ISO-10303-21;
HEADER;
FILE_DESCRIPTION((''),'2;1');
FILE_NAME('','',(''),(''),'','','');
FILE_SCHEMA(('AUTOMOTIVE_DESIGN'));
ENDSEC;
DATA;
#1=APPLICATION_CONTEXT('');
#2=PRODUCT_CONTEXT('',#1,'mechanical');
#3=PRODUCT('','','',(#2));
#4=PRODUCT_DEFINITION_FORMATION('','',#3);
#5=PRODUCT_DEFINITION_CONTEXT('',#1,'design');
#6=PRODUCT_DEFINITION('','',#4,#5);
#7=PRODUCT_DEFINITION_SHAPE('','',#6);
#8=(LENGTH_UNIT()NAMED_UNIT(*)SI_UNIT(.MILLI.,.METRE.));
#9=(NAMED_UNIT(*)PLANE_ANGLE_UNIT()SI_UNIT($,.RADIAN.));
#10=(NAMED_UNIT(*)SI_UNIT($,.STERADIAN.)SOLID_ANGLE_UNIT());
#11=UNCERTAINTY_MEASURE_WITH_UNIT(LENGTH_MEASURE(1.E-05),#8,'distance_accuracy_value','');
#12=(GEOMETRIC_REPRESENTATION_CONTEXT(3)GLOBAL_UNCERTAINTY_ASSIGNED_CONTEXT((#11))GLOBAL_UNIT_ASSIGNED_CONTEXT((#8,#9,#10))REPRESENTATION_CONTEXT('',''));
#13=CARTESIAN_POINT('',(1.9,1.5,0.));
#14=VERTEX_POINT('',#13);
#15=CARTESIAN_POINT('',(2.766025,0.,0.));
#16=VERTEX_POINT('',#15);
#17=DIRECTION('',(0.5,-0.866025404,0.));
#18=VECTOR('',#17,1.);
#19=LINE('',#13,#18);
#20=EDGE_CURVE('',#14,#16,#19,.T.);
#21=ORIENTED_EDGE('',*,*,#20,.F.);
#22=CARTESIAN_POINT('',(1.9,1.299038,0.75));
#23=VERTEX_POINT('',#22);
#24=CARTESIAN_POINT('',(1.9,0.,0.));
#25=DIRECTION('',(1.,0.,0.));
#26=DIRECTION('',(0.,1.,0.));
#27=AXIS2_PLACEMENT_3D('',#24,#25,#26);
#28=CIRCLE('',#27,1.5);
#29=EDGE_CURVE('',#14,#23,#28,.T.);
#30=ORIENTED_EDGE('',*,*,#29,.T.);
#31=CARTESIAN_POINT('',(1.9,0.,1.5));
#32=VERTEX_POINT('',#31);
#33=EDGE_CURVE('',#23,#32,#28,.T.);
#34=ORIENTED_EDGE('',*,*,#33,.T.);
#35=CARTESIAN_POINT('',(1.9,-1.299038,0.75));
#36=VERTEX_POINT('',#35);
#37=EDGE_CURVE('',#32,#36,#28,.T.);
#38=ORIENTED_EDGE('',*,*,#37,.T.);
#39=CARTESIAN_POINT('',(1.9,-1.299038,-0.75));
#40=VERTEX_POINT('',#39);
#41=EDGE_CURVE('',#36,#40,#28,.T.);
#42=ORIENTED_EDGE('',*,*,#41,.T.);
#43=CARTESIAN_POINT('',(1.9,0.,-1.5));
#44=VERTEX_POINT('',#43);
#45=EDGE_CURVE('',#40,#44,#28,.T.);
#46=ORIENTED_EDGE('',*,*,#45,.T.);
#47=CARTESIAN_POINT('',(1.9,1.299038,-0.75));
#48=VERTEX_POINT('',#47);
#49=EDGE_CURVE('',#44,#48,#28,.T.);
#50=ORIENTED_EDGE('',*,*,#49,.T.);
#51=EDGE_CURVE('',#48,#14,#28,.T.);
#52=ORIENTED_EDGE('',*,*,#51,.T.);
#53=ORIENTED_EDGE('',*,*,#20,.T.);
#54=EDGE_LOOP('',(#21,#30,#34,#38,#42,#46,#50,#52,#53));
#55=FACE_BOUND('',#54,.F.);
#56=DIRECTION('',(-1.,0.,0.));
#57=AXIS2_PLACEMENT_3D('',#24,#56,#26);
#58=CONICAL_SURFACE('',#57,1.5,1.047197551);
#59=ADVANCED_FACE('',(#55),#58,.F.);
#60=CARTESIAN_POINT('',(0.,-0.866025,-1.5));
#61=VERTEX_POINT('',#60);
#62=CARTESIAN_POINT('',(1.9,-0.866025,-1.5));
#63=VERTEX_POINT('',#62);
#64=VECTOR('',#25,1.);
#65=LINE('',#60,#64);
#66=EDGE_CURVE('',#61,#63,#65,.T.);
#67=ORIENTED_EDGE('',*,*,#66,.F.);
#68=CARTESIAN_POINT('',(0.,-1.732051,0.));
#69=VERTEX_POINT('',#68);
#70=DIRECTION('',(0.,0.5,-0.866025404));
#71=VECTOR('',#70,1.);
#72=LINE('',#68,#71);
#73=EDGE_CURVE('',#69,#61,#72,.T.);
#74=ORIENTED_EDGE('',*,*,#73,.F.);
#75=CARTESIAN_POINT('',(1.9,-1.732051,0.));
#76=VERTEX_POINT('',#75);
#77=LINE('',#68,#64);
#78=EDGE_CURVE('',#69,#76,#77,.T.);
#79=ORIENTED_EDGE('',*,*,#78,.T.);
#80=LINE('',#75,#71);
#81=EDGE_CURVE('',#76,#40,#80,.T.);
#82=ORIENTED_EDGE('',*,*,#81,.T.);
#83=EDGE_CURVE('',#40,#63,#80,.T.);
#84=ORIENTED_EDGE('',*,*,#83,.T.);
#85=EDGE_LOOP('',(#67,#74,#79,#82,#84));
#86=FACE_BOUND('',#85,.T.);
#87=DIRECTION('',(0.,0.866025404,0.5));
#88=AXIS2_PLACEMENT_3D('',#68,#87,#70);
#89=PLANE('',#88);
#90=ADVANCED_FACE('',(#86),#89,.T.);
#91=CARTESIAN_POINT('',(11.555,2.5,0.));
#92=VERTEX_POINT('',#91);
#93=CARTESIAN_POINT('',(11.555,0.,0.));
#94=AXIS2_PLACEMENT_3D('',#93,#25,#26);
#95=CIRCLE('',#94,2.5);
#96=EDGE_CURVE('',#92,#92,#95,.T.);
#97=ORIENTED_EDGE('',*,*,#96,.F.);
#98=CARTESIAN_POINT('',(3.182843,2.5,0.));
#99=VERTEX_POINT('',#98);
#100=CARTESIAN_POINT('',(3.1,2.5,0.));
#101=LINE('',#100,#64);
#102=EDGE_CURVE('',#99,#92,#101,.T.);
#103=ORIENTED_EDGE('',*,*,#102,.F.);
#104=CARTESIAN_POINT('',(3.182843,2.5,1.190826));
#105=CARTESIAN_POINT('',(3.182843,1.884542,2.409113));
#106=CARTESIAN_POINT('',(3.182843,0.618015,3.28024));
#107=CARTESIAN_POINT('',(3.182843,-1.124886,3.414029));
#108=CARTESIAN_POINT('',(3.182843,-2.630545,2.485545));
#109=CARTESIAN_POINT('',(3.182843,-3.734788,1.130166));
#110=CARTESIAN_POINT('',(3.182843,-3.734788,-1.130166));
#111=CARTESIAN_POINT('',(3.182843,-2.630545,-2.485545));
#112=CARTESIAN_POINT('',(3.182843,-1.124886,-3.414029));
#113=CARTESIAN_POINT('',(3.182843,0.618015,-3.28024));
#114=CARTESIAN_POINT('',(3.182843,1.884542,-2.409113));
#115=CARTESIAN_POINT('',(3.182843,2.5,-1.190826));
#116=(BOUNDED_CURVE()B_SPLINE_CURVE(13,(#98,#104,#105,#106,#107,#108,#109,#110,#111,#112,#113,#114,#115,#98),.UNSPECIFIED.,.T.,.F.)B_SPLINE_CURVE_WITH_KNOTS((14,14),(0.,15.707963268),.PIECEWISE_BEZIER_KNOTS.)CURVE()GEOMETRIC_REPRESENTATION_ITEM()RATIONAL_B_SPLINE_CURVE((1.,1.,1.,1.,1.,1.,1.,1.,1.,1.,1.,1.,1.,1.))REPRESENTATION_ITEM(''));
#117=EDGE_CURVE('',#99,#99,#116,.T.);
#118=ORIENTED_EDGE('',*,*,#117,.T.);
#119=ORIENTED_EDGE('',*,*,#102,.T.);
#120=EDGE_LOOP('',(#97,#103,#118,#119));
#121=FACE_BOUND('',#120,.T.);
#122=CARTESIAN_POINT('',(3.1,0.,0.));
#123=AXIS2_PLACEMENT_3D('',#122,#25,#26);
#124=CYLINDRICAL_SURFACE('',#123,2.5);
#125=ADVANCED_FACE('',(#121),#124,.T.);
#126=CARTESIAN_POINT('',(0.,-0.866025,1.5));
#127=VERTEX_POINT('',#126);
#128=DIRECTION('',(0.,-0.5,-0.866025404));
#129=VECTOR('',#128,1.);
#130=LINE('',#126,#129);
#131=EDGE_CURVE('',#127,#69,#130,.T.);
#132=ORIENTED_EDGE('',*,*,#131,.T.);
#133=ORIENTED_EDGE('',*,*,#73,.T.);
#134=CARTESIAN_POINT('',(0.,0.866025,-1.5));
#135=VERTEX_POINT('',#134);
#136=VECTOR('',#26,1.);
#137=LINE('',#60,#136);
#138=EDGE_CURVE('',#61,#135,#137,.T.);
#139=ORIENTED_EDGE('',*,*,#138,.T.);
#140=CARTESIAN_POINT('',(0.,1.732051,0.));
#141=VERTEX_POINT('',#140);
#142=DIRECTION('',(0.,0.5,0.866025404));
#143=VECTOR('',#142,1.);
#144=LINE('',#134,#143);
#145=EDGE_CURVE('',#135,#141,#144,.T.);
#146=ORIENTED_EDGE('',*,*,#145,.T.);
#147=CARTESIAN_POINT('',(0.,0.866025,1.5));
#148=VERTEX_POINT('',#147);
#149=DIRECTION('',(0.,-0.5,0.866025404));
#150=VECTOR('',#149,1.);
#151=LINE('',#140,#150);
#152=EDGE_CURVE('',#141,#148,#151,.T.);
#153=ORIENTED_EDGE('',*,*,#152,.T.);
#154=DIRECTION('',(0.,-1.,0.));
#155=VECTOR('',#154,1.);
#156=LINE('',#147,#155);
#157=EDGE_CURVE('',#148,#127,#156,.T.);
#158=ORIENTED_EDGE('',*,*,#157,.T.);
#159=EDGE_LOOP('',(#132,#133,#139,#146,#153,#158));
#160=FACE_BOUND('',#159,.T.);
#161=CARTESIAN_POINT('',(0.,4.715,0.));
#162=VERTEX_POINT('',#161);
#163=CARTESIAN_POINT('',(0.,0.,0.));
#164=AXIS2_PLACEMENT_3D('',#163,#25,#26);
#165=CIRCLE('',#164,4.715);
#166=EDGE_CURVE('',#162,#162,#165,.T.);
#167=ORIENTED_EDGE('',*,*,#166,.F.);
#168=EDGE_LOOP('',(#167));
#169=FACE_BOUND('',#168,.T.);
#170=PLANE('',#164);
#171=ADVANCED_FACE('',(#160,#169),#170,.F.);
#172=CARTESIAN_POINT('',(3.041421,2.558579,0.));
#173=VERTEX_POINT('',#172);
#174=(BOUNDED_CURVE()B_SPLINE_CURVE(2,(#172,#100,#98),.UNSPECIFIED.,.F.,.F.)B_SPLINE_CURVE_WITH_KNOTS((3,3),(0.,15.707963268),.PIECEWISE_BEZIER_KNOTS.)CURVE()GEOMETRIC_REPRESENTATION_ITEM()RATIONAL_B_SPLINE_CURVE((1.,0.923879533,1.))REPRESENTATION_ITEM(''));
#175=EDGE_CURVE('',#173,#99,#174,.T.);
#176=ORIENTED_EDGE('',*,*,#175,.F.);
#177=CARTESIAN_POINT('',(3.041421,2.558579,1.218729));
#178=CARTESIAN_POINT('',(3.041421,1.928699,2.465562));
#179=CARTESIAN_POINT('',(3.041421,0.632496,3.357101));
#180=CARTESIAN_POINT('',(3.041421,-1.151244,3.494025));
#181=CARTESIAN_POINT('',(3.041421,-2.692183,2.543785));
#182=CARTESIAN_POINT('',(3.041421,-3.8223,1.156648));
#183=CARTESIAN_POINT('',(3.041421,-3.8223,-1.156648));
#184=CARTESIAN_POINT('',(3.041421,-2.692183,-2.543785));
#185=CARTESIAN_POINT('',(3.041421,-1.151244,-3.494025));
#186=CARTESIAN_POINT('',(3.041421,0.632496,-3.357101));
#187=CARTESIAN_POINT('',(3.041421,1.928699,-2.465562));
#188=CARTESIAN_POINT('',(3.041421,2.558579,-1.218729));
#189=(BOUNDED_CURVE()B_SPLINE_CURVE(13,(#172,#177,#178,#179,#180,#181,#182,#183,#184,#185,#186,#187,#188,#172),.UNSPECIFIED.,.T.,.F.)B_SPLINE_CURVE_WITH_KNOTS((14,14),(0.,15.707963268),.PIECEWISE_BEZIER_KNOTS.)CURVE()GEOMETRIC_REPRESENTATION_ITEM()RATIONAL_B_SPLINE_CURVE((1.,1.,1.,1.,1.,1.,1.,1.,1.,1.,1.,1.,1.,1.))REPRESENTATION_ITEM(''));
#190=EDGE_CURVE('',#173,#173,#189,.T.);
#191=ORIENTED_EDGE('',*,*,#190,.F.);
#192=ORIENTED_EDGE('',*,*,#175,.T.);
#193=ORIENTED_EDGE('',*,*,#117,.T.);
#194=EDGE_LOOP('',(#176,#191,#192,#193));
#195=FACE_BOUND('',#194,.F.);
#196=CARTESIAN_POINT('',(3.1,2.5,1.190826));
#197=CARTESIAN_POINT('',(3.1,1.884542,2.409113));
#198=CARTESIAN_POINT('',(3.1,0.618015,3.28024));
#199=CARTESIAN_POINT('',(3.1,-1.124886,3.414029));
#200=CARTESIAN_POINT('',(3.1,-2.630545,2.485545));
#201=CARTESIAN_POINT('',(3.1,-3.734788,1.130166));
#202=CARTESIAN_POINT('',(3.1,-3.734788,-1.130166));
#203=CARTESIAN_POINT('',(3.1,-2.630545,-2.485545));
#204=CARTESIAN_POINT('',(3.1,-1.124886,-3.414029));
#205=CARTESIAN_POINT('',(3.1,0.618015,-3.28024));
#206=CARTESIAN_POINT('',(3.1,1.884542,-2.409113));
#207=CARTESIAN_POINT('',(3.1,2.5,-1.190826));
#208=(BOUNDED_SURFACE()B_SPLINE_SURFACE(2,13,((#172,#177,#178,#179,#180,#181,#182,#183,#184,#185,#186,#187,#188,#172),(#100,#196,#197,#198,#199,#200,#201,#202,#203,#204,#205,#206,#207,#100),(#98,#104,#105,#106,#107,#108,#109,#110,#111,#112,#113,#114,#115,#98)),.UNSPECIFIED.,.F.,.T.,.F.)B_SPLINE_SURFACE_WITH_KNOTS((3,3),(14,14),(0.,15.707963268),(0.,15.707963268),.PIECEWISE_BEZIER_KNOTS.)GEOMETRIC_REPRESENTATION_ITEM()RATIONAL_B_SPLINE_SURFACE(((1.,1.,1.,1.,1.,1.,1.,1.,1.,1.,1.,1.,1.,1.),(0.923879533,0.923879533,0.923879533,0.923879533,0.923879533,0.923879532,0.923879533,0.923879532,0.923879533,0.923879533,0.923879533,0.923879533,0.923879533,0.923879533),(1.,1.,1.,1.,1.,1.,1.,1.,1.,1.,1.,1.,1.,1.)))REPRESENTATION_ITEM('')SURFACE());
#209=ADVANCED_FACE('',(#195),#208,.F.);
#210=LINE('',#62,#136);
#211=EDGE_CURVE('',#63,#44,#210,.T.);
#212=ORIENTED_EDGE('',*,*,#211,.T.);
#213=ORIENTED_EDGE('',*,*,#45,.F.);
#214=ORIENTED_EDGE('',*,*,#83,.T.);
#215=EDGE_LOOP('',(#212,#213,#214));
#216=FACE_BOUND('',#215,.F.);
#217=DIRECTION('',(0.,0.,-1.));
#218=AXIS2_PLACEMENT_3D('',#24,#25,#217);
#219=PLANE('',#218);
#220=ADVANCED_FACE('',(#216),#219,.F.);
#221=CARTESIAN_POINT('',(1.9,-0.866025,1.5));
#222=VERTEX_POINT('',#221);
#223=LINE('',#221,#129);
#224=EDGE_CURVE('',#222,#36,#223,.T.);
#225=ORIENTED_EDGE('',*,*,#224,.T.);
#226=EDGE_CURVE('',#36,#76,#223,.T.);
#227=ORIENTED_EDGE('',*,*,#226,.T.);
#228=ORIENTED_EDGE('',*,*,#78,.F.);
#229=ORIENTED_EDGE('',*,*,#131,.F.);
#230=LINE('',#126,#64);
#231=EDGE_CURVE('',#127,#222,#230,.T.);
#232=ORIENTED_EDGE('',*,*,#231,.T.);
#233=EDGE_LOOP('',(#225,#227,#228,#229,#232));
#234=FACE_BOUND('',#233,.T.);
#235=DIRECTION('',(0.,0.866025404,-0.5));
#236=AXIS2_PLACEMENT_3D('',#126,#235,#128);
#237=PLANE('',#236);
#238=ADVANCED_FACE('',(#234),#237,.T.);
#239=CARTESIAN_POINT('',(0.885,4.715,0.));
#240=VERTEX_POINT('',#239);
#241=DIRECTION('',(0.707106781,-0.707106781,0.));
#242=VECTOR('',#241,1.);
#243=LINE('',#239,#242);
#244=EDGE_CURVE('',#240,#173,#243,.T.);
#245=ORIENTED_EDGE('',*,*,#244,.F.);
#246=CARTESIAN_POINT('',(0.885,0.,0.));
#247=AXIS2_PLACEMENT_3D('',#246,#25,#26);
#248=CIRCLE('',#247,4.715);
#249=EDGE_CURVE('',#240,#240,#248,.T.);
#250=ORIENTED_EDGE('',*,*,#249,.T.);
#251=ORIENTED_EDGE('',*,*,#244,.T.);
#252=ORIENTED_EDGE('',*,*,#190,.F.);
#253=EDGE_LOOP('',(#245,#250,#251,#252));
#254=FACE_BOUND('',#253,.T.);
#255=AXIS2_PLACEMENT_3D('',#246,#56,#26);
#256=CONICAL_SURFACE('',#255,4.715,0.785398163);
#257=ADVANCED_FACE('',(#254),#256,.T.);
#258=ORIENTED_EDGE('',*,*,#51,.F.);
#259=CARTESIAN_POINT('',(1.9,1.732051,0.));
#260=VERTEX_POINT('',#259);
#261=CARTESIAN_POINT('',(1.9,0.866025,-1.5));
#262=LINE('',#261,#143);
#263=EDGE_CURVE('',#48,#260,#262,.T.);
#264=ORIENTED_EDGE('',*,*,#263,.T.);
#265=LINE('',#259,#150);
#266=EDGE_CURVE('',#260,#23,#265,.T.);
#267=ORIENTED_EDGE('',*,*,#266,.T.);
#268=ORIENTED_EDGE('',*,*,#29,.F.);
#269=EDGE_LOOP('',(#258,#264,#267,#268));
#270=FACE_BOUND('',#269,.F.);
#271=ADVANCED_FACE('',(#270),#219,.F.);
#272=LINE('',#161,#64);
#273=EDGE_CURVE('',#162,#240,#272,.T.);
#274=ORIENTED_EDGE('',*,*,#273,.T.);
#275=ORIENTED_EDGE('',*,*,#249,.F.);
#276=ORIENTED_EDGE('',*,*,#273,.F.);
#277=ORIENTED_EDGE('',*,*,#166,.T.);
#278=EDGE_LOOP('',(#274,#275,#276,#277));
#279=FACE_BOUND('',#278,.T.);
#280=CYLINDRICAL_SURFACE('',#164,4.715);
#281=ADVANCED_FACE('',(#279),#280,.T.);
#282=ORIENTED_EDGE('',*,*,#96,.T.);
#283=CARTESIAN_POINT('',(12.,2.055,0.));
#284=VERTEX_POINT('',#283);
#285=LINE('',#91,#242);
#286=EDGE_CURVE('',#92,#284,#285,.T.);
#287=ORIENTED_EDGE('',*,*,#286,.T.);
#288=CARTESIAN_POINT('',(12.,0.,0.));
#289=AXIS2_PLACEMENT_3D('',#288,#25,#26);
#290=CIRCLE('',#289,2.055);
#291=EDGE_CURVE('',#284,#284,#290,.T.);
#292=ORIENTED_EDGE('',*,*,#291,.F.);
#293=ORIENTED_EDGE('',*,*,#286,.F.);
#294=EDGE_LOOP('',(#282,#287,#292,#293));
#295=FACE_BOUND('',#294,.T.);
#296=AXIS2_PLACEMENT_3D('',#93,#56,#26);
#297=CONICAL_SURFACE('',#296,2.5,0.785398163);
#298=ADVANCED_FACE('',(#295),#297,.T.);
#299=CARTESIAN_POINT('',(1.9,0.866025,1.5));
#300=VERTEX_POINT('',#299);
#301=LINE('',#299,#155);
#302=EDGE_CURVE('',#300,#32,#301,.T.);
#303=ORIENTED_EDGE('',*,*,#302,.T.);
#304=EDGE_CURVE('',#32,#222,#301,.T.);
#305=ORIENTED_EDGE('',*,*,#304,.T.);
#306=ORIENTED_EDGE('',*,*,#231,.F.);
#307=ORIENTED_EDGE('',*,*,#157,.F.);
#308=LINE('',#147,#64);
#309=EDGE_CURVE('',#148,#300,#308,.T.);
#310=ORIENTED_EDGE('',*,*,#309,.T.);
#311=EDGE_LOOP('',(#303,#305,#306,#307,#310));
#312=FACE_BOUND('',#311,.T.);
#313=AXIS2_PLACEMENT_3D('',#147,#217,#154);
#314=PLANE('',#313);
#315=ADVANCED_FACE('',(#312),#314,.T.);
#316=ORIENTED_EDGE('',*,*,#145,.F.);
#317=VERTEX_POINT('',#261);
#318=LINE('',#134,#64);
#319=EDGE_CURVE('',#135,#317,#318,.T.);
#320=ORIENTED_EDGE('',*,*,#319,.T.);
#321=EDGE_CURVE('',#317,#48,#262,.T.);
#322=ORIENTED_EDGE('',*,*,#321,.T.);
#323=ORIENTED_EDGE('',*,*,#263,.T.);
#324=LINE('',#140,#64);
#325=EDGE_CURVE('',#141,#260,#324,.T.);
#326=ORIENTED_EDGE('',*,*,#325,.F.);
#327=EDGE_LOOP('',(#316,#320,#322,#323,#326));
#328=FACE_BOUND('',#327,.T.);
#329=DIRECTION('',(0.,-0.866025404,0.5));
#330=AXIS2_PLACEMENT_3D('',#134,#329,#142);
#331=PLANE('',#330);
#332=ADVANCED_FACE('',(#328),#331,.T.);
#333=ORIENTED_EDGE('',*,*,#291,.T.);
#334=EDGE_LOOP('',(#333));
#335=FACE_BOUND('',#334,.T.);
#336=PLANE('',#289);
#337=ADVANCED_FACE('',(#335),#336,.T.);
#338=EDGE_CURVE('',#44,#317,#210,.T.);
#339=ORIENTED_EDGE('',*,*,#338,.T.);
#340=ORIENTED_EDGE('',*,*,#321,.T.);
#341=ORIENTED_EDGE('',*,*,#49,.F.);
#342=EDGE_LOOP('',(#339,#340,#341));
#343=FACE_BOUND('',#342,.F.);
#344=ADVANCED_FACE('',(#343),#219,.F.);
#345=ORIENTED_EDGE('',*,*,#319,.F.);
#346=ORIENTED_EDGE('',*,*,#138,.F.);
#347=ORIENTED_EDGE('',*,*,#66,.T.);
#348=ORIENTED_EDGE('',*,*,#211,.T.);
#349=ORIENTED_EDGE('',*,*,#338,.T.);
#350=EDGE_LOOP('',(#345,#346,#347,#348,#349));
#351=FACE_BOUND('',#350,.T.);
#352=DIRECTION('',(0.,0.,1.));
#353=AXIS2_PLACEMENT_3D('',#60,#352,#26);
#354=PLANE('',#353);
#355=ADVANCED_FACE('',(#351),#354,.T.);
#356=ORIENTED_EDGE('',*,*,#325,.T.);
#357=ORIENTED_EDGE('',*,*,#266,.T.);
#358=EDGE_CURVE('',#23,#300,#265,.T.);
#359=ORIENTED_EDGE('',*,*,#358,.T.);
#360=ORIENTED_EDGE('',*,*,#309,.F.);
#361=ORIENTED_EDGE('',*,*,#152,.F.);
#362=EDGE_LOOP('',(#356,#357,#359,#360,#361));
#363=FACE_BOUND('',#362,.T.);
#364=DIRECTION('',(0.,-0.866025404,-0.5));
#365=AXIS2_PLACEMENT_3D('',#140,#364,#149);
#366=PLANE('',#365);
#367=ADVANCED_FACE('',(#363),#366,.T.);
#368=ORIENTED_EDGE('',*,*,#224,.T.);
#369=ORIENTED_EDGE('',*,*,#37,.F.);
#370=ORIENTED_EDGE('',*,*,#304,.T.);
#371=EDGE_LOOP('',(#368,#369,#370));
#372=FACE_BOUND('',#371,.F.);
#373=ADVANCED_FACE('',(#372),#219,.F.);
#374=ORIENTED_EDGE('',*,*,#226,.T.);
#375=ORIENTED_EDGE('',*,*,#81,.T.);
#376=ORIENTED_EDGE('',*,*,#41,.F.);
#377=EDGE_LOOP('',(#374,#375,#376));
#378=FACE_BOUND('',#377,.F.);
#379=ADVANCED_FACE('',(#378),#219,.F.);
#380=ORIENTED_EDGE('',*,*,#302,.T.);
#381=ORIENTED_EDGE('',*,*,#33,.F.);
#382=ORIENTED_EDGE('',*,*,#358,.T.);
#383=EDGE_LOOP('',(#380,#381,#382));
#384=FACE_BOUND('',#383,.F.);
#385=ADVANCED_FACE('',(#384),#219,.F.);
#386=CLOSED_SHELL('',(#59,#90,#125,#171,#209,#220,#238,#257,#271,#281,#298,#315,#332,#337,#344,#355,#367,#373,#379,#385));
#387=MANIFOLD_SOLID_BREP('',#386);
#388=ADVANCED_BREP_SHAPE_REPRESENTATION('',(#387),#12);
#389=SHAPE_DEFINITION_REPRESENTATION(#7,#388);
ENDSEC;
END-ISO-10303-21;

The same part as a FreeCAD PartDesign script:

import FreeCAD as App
import Part
import Sketcher

V = App.Vector
Q = App.Units.Quantity


def edges_at(feature, points):
    """Names of the edges that pass closest to the given points."""
    edges = feature.Shape.Edges
    near = lambda p: min(range(len(edges)), key=lambda i: edges[i].distToShape(Part.Vertex(*p))[0])
    return sorted({f"Edge{near(p) + 1}" for p in points})

doc = App.newDocument("Part")
body = doc.addObject("PartDesign::Body", "Body")

sketch1 = doc.addObject("Sketcher::SketchObject", "Sketch")
body.addObject(sketch1)
sketch1.AttachmentSupport = (doc.XY_Plane, [""])
sketch1.MapMode = "FlatFace"
sketch1.addGeometry([
    Part.LineSegment(V(0, 4.715, 0), V(0, 0, 0)),
    Part.LineSegment(V(0, 0, 0), V(12, 0, 0)),
    Part.LineSegment(V(12, 0, 0), V(12, 2.055, 0)),
    Part.LineSegment(V(12, 2.055, 0), V(11.555, 2.5, 0)),
    Part.LineSegment(V(11.555, 2.5, 0), V(3.1, 2.5, 0)),
    Part.LineSegment(V(3.1, 2.5, 0), V(0.885, 4.715, 0)),
    Part.LineSegment(V(0.885, 4.715, 0), V(0, 4.715, 0)),
], False)
sketch1.addConstraint([
    Sketcher.Constraint("Coincident", 0, 2, 1, 1),
    Sketcher.Constraint("Coincident", 1, 2, 2, 1),
    Sketcher.Constraint("Coincident", 2, 2, 3, 1),
    Sketcher.Constraint("Coincident", 3, 2, 4, 1),
    Sketcher.Constraint("Coincident", 4, 2, 5, 1),
    Sketcher.Constraint("Coincident", 5, 2, 6, 1),
    Sketcher.Constraint("Coincident", 6, 2, 0, 1),
    Sketcher.Constraint("Vertical", 0),
    Sketcher.Constraint("Horizontal", 1),
    Sketcher.Constraint("Vertical", 2),
    Sketcher.Constraint("Horizontal", 4),
    Sketcher.Constraint("Horizontal", 6),
    Sketcher.Constraint("Coincident", 0, 2, -1, 1),
    Sketcher.Constraint("Parallel", 3, 5),
    Sketcher.Constraint("DistanceX", 1, 1, 1, 2, Q("12 mm")),
    Sketcher.Constraint("Angle", 3, Q("135 deg")),
    Sketcher.Constraint("DistanceY", -1, 1, 3, 2, Q("2.5 mm")),
    Sketcher.Constraint("DistanceX", -1, 1, 4, 2, Q("3.1 mm")),
    Sketcher.Constraint("DistanceX", 4, 2, 4, 1, Q("8.455 mm")),
    Sketcher.Constraint("DistanceX", 6, 2, 6, 1, Q("0.885 mm")),
])
revolution = doc.addObject("PartDesign::Revolution", "Revolution")
body.addObject(revolution)
revolution.Profile = sketch1
revolution.ReferenceAxis = (sketch1, ["H_Axis"])
revolution.Angle = 360
doc.recompute()

fillet = doc.addObject("PartDesign::Fillet", "Fillet")
body.addObject(fillet)
fillet.Base = (revolution, edges_at(revolution, [(3.1, -2.5, 0)]))
fillet.Radius = 0.2

sketch2 = doc.addObject("Sketcher::SketchObject", "Sketch001")
body.addObject(sketch2)
sketch2.AttachmentSupport = (doc.XY_Plane, [""])
sketch2.MapMode = "FlatFace"
sketch2.addGeometry([
    Part.LineSegment(V(1.9, 1.5, 0), V(0, 1.5, 0)),
    Part.LineSegment(V(0, 1.5, 0), V(0, 0, 0)),
    Part.LineSegment(V(0, 0, 0), V(2.766025, 0, 0)),
    Part.LineSegment(V(2.766025, 0, 0), V(1.9, 1.5, 0)),
], False)
sketch2.addConstraint([
    Sketcher.Constraint("Coincident", 0, 2, 1, 1),
    Sketcher.Constraint("Coincident", 1, 2, 2, 1),
    Sketcher.Constraint("Coincident", 2, 2, 3, 1),
    Sketcher.Constraint("Coincident", 3, 2, 0, 1),
    Sketcher.Constraint("Horizontal", 0),
    Sketcher.Constraint("Vertical", 1),
    Sketcher.Constraint("Horizontal", 2),
    Sketcher.Constraint("Coincident", 1, 2, -1, 1),
    Sketcher.Constraint("Angle", 3, Q("120 deg")),
    Sketcher.Constraint("DistanceX", 0, 2, 0, 1, Q("1.9 mm")),
    Sketcher.Constraint("DistanceY", 1, 2, 1, 1, Q("1.5 mm")),
])
groove = doc.addObject("PartDesign::Groove", "Groove")
body.addObject(groove)
groove.Profile = sketch2
groove.ReferenceAxis = (sketch2, ["H_Axis"])
groove.Angle = 360

sketch3 = doc.addObject("Sketcher::SketchObject", "Sketch002")
body.addObject(sketch3)
sketch3.AttachmentSupport = (doc.YZ_Plane, [""])
sketch3.MapMode = "FlatFace"
sketch3.addGeometry([
    Part.LineSegment(V(0.866025, -1.5, 0), V(-0.866025, -1.5, 0)),
    Part.LineSegment(V(-0.866025, -1.5, 0), V(-1.732051, 0, 0)),
    Part.LineSegment(V(-1.732051, 0, 0), V(-0.866025, 1.5, 0)),
    Part.LineSegment(V(-0.866025, 1.5, 0), V(0.866025, 1.5, 0)),
    Part.LineSegment(V(0.866025, 1.5, 0), V(1.732051, 0, 0)),
    Part.LineSegment(V(1.732051, 0, 0), V(0.866025, -1.5, 0)),
], False)
sketch3.addConstraint([
    Sketcher.Constraint("Coincident", 0, 2, 1, 1),
    Sketcher.Constraint("Coincident", 1, 2, 2, 1),
    Sketcher.Constraint("Coincident", 2, 2, 3, 1),
    Sketcher.Constraint("Coincident", 3, 2, 4, 1),
    Sketcher.Constraint("Coincident", 4, 2, 5, 1),
    Sketcher.Constraint("Coincident", 5, 2, 0, 1),
    Sketcher.Constraint("Horizontal", 0),
    Sketcher.Constraint("Horizontal", 3),
    Sketcher.Constraint("Symmetric", 0, 2, 3, 2, -1, 1),
    Sketcher.Constraint("Symmetric", 1, 2, 4, 2, -1, 1),
    Sketcher.Constraint("PointOnObject", 1, 2, -1),
    Sketcher.Constraint("Parallel", 2, 5),
    Sketcher.Constraint("Vertical", 0, 2, 2, 2),
    Sketcher.Constraint("Angle", 1, Q("120 deg")),
    Sketcher.Constraint("DistanceY", 0, 2, 2, 2, Q("3 mm")),
    Sketcher.Constraint("DistanceX", 0, 2, 0, 1, Q("1.732051 mm")),
])
pocket1 = doc.addObject("PartDesign::Pocket", "Pocket")
body.addObject(pocket1)
pocket1.Profile = sketch3
pocket1.Length = 1.9
pocket1.Reversed = True

doc.recompute()
